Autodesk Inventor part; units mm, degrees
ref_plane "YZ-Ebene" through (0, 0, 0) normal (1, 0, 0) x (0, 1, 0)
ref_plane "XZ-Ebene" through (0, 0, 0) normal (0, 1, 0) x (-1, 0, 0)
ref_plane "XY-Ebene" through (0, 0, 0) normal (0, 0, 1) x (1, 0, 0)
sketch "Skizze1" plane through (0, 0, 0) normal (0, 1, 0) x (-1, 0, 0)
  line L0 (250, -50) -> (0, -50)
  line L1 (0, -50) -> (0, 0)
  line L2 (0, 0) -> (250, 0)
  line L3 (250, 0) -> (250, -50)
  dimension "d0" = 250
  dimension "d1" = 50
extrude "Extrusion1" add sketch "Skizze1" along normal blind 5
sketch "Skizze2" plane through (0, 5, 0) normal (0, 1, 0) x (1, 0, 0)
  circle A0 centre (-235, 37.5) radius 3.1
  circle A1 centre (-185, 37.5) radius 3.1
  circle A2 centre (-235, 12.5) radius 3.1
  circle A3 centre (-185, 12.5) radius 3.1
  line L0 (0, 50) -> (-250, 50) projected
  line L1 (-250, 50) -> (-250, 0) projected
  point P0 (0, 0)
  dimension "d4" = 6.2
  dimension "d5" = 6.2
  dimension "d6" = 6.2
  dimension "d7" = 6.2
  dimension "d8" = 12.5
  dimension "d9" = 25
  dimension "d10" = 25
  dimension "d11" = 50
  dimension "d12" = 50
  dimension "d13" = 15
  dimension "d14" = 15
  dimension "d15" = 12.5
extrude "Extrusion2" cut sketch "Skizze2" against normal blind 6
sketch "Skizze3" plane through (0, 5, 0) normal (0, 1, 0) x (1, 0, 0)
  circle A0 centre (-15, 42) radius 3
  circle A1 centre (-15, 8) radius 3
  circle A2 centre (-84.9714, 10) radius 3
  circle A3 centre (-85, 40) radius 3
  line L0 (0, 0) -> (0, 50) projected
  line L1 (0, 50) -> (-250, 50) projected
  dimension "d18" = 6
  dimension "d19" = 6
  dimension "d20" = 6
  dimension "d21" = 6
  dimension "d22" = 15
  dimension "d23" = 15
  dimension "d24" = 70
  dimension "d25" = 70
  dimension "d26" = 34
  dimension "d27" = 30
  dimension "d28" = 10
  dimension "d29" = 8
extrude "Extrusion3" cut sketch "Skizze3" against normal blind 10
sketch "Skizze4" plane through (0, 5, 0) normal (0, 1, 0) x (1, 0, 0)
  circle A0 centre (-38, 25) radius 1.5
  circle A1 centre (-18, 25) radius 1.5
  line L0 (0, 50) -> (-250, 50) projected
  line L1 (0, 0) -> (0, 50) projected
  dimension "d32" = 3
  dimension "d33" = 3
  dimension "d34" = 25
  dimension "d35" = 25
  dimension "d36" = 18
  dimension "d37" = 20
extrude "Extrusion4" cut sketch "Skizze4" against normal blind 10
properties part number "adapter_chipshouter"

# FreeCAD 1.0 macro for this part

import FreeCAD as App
import Part
import Sketcher
Q = App.Units.Quantity


def add_polygon(sketch, points):
    """Adds a closed chain of lines whose ends are joined by coincident constraints."""
    first, n = sketch.GeometryCount, len(points)
    for a, b in zip(points, points[1:] + points[:1]):
        sketch.addGeometry(Part.LineSegment(App.Vector(*a, 0), App.Vector(*b, 0)), False)
    for i in range(n):
        sketch.addConstraint(Sketcher.Constraint("Coincident", first + i, 2, first + (i + 1) % n, 1))

doc = App.newDocument("Part")
params = doc.addObject("Spreadsheet::Sheet", "Params")
for row, (alias, value) in enumerate([
    ("sketch1_width", "250 mm"),
    ("sketch1_height", "50 mm"),
    ("pad1_length", "5 mm"),
    ("sketch2_diameter", "6.2 mm"),
    ("pocket1_length", "6 mm"),
    ("sketch3_diameter", "6 mm"),
    ("pocket2_length", "10 mm"),
    ("sketch4_diameter", "3 mm"),
    ("pocket3_length", "10 mm"),
], start=1):
    params.set(f"A{row}", alias)
    params.set(f"B{row}", "=" + value)
    params.setAlias(f"B{row}", alias)

body = doc.addObject("PartDesign::Body", "Body")

# Sketch on XZ plane
sketch1 = doc.addObject("Sketcher::SketchObject", "Sketch")
body.addObject(sketch1)
sketch1.AttachmentSupport = (doc.XZ_Plane, [""])
sketch1.MapMode = "FlatFace"
add_polygon(sketch1, [(0, -50), (-250, -50), (-250, 0), (0, 0)])  # lines 0-3
sketch1.addConstraint([
    Sketcher.Constraint("Horizontal", 0),
    Sketcher.Constraint("Vertical", 1),
    Sketcher.Constraint("Horizontal", 2),
    Sketcher.Constraint("Vertical", 3),
    Sketcher.Constraint("Coincident", 2, 2, -1, 1),
    Sketcher.Constraint("DistanceX", 0, 2, 0, 1, Q("250 mm")),
    Sketcher.Constraint("DistanceY", 1, 1, 1, 2, Q("50 mm")),
])
sketch1.setExpression("Constraints[9]", "Params.sketch1_width")
sketch1.setExpression("Constraints[10]", "Params.sketch1_height")
pad1 = doc.addObject("PartDesign::Pad", "Pad")
body.addObject(pad1)
pad1.Profile = sketch1
pad1.setExpression("Length", "Params.pad1_length")
pad1.Reversed = True

# Sketch on XZ plane
sketch2 = doc.addObject("Sketcher::SketchObject", "Sketch001")
body.addObject(sketch2)
sketch2.AttachmentSupport = (doc.XZ_Plane, [""])
sketch2.MapMode = "FlatFace"
sketch2.AttachmentOffset = App.Placement(App.Vector(0, 0, -5), App.Rotation())
sketch2.addGeometry([
    Part.Circle(App.Vector(-235, -37.5, 0), App.Vector(0, 0, 1), 3.1),
    Part.Circle(App.Vector(-185, -37.5, 0), App.Vector(0, 0, 1), 3.1),
    Part.Circle(App.Vector(-235, -12.5, 0), App.Vector(0, 0, 1), 3.1),
    Part.Circle(App.Vector(-185, -12.5, 0), App.Vector(0, 0, 1), 3.1),
], False)
sketch2.addConstraint([
    Sketcher.Constraint("Equal", 0, 1),
    Sketcher.Constraint("Equal", 1, 2),
    Sketcher.Constraint("Equal", 2, 3),
    Sketcher.Constraint("Horizontal", 0, 3, 1, 3),
    Sketcher.Constraint("Horizontal", 2, 3, 3, 3),
    Sketcher.Constraint("Vertical", 0, 3, 2, 3),
    Sketcher.Constraint("Vertical", 1, 3, 3, 3),
    Sketcher.Constraint("Diameter", 0, Q("6.2 mm")),
    Sketcher.Constraint("DistanceX", 0, 3, 1, 3, Q("50 mm")),
    Sketcher.Constraint("DistanceY", 0, 3, 2, 3, Q("25 mm")),
    Sketcher.Constraint("DistanceY", 2, 3, -1, 1, Q("12.5 mm")),
    Sketcher.Constraint("DistanceX", 0, 3, -1, 1, Q("235 mm")),
])
sketch2.setExpression("Constraints[7]", "Params.sketch2_diameter")
pocket1 = doc.addObject("PartDesign::Pocket", "Pocket")
body.addObject(pocket1)
pocket1.Profile = sketch2
pocket1.setExpression("Length", "Params.pocket1_length")
pocket1.Reversed = True

# Sketch on XZ plane
sketch3 = doc.addObject("Sketcher::SketchObject", "Sketch002")
body.addObject(sketch3)
sketch3.AttachmentSupport = (doc.XZ_Plane, [""])
sketch3.MapMode = "FlatFace"
sketch3.AttachmentOffset = App.Placement(App.Vector(0, 0, -5), App.Rotation())
sketch3.addGeometry([
    Part.Circle(App.Vector(-15, -42, 0), App.Vector(0, 0, 1), 3),
    Part.Circle(App.Vector(-15, -8, 0), App.Vector(0, 0, 1), 3),
    Part.Circle(App.Vector(-85, -10, 0), App.Vector(0, 0, 1), 3),
    Part.Circle(App.Vector(-85, -40, 0), App.Vector(0, 0, 1), 3),
], False)
sketch3.addConstraint([
    Sketcher.Constraint("Equal", 0, 1),
    Sketcher.Constraint("Equal", 1, 2),
    Sketcher.Constraint("Equal", 2, 3),
    Sketcher.Constraint("Vertical", 0, 3, 1, 3),
    Sketcher.Constraint("Diameter", 0, Q("6 mm")),
    Sketcher.Constraint("DistanceX", 0, 3, -1, 1, Q("15 mm")),
    Sketcher.Constraint("DistanceY", 1, 3, -1, 1, Q("8 mm")),
    Sketcher.Constraint("DistanceY", 2, 3, -1, 1, Q("10 mm")),
    Sketcher.Constraint("DistanceY", 0, 3, 1, 3, Q("34 mm")),
    Sketcher.Constraint("DistanceY", 3, 3, 2, 3, Q("30 mm")),
    Sketcher.Constraint("DistanceX", 3, 3, 0, 3, Q("70 mm")),
    Sketcher.Constraint("DistanceX", 2, 3, -1, 1, Q("84.9714 mm")),
])
sketch3.setExpression("Constraints[4]", "Params.sketch3_diameter")
pocket2 = doc.addObject("PartDesign::Pocket", "Pocket001")
body.addObject(pocket2)
pocket2.Profile = sketch3
pocket2.setExpression("Length", "Params.pocket2_length")
pocket2.Reversed = True

# Sketch on XZ plane
sketch4 = doc.addObject("Sketcher::SketchObject", "Sketch003")
body.addObject(sketch4)
sketch4.AttachmentSupport = (doc.XZ_Plane, [""])
sketch4.MapMode = "FlatFace"
sketch4.AttachmentOffset = App.Placement(App.Vector(0, 0, -5), App.Rotation())
sketch4.addGeometry([
    Part.Circle(App.Vector(-38, -25, 0), App.Vector(0, 0, 1), 1.5),
    Part.Circle(App.Vector(-18, -25, 0), App.Vector(0, 0, 1), 1.5),
], False)
sketch4.addConstraint([
    Sketcher.Constraint("Equal", 0, 1),
    Sketcher.Constraint("Horizontal", 0, 3, 1, 3),
    Sketcher.Constraint("Diameter", 0, Q("3 mm")),
    Sketcher.Constraint("DistanceY", 0, 3, -1, 1, Q("25 mm")),
    Sketcher.Constraint("DistanceX", 1, 3, -1, 1, Q("18 mm")),
    Sketcher.Constraint("DistanceX", 0, 3, 1, 3, Q("20 mm")),
])
sketch4.setExpression("Constraints[2]", "Params.sketch4_diameter")
pocket3 = doc.addObject("PartDesign::Pocket", "Pocket002")
body.addObject(pocket3)
pocket3.Profile = sketch4
pocket3.setExpression("Length", "Params.pocket3_length")
pocket3.Reversed = True

doc.recompute()
